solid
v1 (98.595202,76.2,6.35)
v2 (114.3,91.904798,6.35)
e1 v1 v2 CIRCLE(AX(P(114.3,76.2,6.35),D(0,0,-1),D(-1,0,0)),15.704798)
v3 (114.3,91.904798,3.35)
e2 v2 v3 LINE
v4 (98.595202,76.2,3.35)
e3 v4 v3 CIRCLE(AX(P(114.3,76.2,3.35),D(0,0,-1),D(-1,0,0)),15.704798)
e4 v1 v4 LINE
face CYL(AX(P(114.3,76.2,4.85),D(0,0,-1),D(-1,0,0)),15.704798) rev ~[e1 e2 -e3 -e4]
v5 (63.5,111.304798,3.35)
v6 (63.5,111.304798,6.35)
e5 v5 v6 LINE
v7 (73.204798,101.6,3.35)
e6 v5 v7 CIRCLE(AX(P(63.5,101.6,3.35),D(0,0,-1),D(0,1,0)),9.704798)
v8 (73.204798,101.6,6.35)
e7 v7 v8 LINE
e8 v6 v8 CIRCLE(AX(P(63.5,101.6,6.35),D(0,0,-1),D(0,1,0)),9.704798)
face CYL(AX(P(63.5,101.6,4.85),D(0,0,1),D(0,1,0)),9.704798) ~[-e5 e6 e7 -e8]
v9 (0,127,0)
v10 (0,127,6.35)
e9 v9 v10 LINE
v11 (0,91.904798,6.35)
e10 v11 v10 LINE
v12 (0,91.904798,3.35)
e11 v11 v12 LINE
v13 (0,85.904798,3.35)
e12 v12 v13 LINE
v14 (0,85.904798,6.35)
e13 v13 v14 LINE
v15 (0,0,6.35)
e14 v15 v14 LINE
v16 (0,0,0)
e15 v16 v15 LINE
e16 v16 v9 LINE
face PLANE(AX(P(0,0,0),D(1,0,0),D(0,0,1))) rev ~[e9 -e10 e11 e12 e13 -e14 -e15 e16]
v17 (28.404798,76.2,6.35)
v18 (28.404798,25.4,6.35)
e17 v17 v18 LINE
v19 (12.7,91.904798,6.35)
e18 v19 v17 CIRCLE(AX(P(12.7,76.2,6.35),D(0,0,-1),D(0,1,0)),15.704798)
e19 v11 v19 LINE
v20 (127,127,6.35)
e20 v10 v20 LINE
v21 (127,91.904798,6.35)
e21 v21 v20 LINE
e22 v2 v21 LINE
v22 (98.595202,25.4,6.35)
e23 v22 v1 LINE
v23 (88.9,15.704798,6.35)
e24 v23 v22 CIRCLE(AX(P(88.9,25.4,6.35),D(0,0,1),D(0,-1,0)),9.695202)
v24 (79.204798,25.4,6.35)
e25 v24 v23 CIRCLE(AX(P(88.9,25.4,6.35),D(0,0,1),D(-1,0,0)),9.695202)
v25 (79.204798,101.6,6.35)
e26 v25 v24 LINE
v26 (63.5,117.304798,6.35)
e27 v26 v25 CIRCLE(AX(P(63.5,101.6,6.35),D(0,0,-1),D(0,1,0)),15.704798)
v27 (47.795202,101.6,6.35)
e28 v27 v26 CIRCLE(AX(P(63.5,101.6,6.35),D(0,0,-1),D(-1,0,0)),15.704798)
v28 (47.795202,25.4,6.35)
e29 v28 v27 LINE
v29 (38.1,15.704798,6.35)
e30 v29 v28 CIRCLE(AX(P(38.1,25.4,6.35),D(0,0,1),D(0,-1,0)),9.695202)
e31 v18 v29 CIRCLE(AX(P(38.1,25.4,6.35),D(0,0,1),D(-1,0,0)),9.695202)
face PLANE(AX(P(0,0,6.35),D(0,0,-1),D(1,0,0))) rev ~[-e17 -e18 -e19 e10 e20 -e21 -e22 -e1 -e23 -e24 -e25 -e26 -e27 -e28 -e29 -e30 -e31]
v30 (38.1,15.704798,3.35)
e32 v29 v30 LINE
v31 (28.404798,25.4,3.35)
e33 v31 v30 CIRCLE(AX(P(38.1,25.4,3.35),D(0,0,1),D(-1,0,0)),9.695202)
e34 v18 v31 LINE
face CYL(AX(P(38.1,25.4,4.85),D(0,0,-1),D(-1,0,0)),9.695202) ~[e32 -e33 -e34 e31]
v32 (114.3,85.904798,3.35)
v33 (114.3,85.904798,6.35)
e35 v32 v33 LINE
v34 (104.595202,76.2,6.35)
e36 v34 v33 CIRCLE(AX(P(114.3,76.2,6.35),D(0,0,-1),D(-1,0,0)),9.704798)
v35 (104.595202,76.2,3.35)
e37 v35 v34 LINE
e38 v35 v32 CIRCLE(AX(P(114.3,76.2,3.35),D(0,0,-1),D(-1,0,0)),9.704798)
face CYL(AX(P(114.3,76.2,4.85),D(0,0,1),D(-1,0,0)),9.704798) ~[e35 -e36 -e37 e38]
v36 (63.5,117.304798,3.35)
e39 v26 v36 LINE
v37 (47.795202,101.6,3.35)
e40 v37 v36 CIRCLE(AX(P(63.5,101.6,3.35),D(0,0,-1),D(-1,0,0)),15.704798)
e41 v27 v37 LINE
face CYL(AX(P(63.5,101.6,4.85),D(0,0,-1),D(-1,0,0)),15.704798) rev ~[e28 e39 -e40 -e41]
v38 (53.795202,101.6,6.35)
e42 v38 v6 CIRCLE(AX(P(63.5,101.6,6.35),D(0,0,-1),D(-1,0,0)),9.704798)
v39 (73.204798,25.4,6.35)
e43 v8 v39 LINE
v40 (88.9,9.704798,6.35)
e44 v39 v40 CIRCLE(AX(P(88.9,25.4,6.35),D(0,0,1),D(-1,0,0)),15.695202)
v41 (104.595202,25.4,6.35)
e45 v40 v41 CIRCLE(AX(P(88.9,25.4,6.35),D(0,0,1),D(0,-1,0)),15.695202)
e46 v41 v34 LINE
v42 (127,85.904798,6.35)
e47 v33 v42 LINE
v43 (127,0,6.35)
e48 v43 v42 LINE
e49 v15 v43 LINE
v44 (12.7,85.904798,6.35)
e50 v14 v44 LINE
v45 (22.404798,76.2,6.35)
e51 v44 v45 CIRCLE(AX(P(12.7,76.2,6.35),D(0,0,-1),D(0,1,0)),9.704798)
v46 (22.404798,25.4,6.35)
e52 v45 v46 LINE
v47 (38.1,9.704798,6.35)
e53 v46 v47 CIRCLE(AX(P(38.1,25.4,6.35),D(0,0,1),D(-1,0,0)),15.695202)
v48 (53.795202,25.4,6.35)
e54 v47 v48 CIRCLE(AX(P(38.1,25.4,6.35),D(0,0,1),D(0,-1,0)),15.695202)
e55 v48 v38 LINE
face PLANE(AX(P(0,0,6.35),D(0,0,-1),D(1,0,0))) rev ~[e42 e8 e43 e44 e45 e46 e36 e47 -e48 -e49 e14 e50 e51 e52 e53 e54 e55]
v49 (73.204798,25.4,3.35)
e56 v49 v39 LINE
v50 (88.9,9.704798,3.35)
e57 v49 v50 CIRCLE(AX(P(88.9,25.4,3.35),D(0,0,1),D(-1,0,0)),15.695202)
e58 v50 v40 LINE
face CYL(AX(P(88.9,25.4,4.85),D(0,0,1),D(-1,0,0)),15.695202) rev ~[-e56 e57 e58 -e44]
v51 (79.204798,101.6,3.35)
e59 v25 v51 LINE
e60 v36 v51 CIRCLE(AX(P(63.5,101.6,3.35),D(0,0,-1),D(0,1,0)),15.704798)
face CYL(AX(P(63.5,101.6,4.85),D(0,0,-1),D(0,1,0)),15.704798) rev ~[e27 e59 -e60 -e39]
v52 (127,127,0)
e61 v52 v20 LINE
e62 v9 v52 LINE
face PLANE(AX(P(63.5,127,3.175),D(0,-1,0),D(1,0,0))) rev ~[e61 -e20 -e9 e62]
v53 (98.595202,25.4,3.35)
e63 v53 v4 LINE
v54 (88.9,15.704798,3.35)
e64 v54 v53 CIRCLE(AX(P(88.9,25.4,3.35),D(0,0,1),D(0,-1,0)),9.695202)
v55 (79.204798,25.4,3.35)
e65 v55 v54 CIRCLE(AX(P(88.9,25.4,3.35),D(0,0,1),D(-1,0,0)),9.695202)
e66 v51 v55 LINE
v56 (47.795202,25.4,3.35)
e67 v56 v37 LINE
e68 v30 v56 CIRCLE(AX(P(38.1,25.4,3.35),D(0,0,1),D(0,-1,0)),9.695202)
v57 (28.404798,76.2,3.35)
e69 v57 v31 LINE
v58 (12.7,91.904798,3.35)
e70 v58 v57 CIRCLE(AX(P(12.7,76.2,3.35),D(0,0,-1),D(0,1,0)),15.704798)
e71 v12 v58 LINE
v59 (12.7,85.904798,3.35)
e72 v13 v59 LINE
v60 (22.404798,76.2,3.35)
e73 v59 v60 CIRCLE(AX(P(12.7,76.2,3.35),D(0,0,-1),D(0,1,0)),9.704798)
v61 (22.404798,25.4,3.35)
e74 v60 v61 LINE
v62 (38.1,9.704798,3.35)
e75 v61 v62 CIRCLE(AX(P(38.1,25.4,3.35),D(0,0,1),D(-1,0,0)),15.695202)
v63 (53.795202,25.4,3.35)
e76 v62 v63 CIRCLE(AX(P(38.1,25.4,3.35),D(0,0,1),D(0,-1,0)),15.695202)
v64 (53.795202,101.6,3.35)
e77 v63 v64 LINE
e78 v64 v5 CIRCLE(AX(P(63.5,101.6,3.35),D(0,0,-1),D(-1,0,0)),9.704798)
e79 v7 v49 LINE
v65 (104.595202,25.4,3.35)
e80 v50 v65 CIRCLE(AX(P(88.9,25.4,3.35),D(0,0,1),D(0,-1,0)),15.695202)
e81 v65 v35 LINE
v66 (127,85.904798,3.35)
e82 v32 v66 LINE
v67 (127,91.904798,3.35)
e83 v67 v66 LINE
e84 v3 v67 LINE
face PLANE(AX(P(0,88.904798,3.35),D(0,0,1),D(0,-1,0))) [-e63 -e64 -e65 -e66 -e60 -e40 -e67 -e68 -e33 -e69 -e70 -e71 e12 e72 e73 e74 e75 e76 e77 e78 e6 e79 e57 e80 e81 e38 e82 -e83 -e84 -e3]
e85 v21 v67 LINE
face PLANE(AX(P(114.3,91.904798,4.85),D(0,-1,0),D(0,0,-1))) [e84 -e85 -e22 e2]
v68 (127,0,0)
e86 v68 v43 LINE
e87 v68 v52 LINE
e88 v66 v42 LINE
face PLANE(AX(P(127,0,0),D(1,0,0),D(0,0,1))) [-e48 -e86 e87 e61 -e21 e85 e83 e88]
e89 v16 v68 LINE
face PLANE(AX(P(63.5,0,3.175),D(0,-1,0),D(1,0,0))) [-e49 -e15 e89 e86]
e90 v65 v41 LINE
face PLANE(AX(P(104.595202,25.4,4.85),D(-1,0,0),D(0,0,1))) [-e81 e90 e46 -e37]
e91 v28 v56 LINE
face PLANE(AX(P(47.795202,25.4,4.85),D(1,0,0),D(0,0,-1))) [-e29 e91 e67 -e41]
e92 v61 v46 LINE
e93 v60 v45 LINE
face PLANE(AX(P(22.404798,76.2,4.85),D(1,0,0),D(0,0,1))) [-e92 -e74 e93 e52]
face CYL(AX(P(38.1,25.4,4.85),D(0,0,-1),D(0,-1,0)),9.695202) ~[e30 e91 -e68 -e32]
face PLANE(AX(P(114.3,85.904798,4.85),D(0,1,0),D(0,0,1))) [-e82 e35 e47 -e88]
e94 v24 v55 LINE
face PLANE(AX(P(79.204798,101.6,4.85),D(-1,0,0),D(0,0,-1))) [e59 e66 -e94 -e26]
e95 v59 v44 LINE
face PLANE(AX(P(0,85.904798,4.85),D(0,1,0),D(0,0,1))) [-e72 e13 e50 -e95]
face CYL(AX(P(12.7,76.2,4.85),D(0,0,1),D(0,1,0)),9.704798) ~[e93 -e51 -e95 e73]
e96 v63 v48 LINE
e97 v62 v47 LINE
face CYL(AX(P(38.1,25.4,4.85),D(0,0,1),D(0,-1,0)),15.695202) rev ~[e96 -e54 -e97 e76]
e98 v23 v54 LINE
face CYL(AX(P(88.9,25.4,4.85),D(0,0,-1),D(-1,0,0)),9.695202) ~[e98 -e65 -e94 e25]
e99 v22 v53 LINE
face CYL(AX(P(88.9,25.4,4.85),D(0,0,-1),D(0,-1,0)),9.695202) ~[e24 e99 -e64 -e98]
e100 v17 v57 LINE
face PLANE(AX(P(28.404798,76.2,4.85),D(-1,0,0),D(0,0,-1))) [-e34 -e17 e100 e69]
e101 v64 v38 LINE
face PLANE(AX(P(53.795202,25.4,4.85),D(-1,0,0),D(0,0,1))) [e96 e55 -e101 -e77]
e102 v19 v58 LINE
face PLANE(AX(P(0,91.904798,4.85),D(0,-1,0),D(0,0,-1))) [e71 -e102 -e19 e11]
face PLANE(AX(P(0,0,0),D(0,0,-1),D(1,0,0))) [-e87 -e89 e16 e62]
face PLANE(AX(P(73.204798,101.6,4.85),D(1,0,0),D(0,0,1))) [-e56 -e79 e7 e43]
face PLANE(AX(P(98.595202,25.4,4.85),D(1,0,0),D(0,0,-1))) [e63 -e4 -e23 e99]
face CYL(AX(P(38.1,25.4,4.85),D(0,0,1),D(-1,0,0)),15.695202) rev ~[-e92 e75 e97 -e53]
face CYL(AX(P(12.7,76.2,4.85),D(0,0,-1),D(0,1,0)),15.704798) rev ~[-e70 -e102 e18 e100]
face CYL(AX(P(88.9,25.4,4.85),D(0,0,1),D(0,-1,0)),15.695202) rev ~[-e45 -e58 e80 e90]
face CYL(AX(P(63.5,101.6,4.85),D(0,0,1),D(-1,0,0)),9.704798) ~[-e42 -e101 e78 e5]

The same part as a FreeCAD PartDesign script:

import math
import FreeCAD as App
import Part
import Sketcher

V = App.Vector
Q = App.Units.Quantity

doc = App.newDocument("Part")
params = doc.addObject("Spreadsheet::Sheet", "Params")
for row, (alias, value) in enumerate([
    ("sketch1_width", "5 in"),
    ("sketch1_height", "0.25 in"),
    ("pad1_length", "5 in"),
    ("sketch3_radius", "0.5 in"),
    ("sketch3_height", "2 in"),
    ("sketch3_height2", "3 in"),
    ("sketch3_width", "0.5 in"),
], start=1):
    params.set(f"A{row}", alias)
    params.set(f"B{row}", "=" + value)
    params.setAlias(f"B{row}", alias)

body = doc.addObject("PartDesign::Body", "Body")

sketch1 = doc.addObject("Sketcher::SketchObject", "Sketch")
body.addObject(sketch1)
sketch1.AttachmentSupport = (doc.XZ_Plane, [""])
sketch1.MapMode = "FlatFace"
sketch1.addGeometry([
    Part.LineSegment(V(0, 6, 0), V(0, 0, 0)),
    Part.LineSegment(V(0, 0, 0), V(127, 0, 0)),
    Part.LineSegment(V(127, 0, 0), V(127, 6, 0)),
    Part.LineSegment(V(127, 6, 0), V(0, 6, 0)),
], False)
sketch1.addConstraint([
    Sketcher.Constraint("Coincident", 0, 2, 1, 1),
    Sketcher.Constraint("Coincident", 1, 2, 2, 1),
    Sketcher.Constraint("Coincident", 2, 2, 3, 1),
    Sketcher.Constraint("Coincident", 3, 2, 0, 1),
    Sketcher.Constraint("Vertical", 0),
    Sketcher.Constraint("Horizontal", 1),
    Sketcher.Constraint("Vertical", 2),
    Sketcher.Constraint("Horizontal", 3),
    Sketcher.Constraint("Coincident", 0, 2, -1, 1),
    Sketcher.Constraint("DistanceX", 1, 1, 1, 2, Q("5 in")),
    Sketcher.Constraint("DistanceY", 0, 2, 0, 1, Q("0.25 in")),
])
sketch1.setExpression("Constraints[9]", "Params.sketch1_width")
sketch1.setExpression("Constraints[10]", "Params.sketch1_height")
pad1 = doc.addObject("PartDesign::Pad", "Pad")
body.addObject(pad1)
pad1.Profile = sketch1
pad1.setExpression("Length", "Params.pad1_length")
pad1.Reversed = True

sketch2 = doc.addObject("Sketcher::SketchObject", "Sketch001")
body.addObject(sketch2)
sketch2.AttachmentSupport = (doc.YZ_Plane, [""])
sketch2.MapMode = "FlatFace"
sketch2.addGeometry([
    Part.LineSegment(V(91.9, 6.3, 0), V(91.9, 3.4, 0)),
    Part.LineSegment(V(91.9, 3.4, 0), V(85.9, 3.4, 0)),
    Part.LineSegment(V(85.9, 3.4, 0), V(85.9, 6.3, 0)),
    Part.LineSegment(V(85.9, 6.3, 0), V(91.9, 6.3, 0)),
], False)
sketch2.addConstraint([
    Sketcher.Constraint("Coincident", 0, 2, 1, 1),
    Sketcher.Constraint("Coincident", 1, 2, 2, 1),
    Sketcher.Constraint("Coincident", 2, 2, 3, 1),
    Sketcher.Constraint("Coincident", 3, 2, 0, 1),
    Sketcher.Constraint("Vertical", 0),
    Sketcher.Constraint("Horizontal", 1),
    Sketcher.Constraint("Vertical", 2),
    Sketcher.Constraint("Horizontal", 3),
    Sketcher.Constraint("DistanceY", -1, 1, 2, 2, Q("0.25 in")),
    Sketcher.Constraint("DistanceX", 1, 2, 1, 1, Q("6 mm")),
    Sketcher.Constraint("DistanceY", 0, 2, 0, 1, Q("3 mm")),
    Sketcher.Constraint("DistanceX", -1, 1, 0, 2, Q("91.904798 mm")),
])

sketch3 = doc.addObject("Sketcher::SketchObject", "Sketch002")
body.addObject(sketch3)
sketch3.AttachmentSupport = (doc.XY_Plane, [""])
sketch3.MapMode = "FlatFace"
sketch3.AttachmentOffset = App.Placement(V(0, 0, 0.25 * 25.4), App.Rotation())
sketch3.addGeometry([
    Part.LineSegment(V(0, 89, 0), V(13, 89, 0)),
    Part.ArcOfCircle(Part.Circle(V(13, 76, 0), V(0, 0, 1), 13), math.radians(0), math.radians(90)),
    Part.LineSegment(V(25, 76, 0), V(25, 25, 0)),
    Part.ArcOfCircle(Part.Circle(V(38, 25, 0), V(0, 0, 1), 13), math.radians(180), math.radians(270)),
    Part.ArcOfCircle(Part.Circle(V(38, 25, 0), V(0, 0, 1), 13), math.radians(-90), math.radians(0)),
    Part.LineSegment(V(51, 25, 0), V(51, 102, 0)),
    Part.ArcOfCircle(Part.Circle(V(64, 102, 0), V(0, 0, 1), 13), math.radians(90), math.radians(180)),
    Part.ArcOfCircle(Part.Circle(V(64, 102, 0), V(0, 0, 1), 13), math.radians(0), math.radians(90)),
    Part.LineSegment(V(76, 102, 0), V(76, 25, 0)),
    Part.ArcOfCircle(Part.Circle(V(89, 25, 0), V(0, 0, 1), 13), math.radians(180), math.radians(270)),
    Part.ArcOfCircle(Part.Circle(V(89, 25, 0), V(0, 0, 1), 13), math.radians(-90), math.radians(0)),
    Part.LineSegment(V(102, 25, 0), V(102, 76, 0)),
    Part.ArcOfCircle(Part.Circle(V(114, 76, 0), V(0, 0, 1), 13), math.radians(90), math.radians(180)),
    Part.LineSegment(V(114, 89, 0), V(127, 89, 0)),
], False)
sketch3.addConstraint([
    Sketcher.Constraint("Tangent", 0, 2, 1, 2),
    Sketcher.Constraint("Tangent", 1, 1, 2, 1),
    Sketcher.Constraint("Tangent", 2, 2, 3, 1),
    Sketcher.Constraint("Tangent", 3, 2, 4, 1),
    Sketcher.Constraint("Tangent", 4, 2, 5, 1),
    Sketcher.Constraint("Tangent", 5, 2, 6, 2),
    Sketcher.Constraint("Tangent", 6, 1, 7, 2),
    Sketcher.Constraint("Tangent", 7, 1, 8, 1),
    Sketcher.Constraint("Tangent", 8, 2, 9, 1),
    Sketcher.Constraint("Tangent", 9, 2, 10, 1),
    Sketcher.Constraint("Tangent", 10, 2, 11, 1),
    Sketcher.Constraint("Tangent", 11, 2, 12, 2),
    Sketcher.Constraint("Tangent", 12, 1, 13, 1),
    Sketcher.Constraint("Horizontal", 0),
    Sketcher.Constraint("Vertical", 2),
    Sketcher.Constraint("Vertical", 5),
    Sketcher.Constraint("Vertical", 8),
    Sketcher.Constraint("Vertical", 11),
    Sketcher.Constraint("Horizontal", 13),
    Sketcher.Constraint("Equal", 1, 3),
    Sketcher.Constraint("Equal", 3, 4),
    Sketcher.Constraint("Equal", 4, 6),
    Sketcher.Constraint("Equal", 6, 7),
    Sketcher.Constraint("Equal", 7, 9),
    Sketcher.Constraint("Equal", 9, 10),
    Sketcher.Constraint("Equal", 10, 12),
    Sketcher.Constraint("PointOnObject", 0, 1, -2),
    Sketcher.Constraint("Horizontal", 4, 3, 9, 3),
    Sketcher.Constraint("Horizontal", 1, 3, 12, 3),
    Sketcher.Constraint("Vertical", 4, 3, 3, 2),
    Sketcher.Constraint("Vertical", 7, 3, 6, 1),
    Sketcher.Constraint("Vertical", 10, 3, 9, 2),
    Sketcher.Constraint("Equal", 0, 13),
    Sketcher.Constraint("Radius", 1, Q("0.5 in")),
    Sketcher.Constraint("DistanceY", 2, 2, 2, 1, Q("2 in")),
    Sketcher.Constraint("DistanceY", 5, 1, 5, 2, Q("3 in")),
    Sketcher.Constraint("DistanceX", 0, 1, 0, 2, Q("0.5 in")),
    Sketcher.Constraint("DistanceY", -1, 1, 1, 3, Q("3 in")),
])
sketch3.setExpression("Constraints[33]", "Params.sketch3_radius")
sketch3.setExpression("Constraints[34]", "Params.sketch3_height")
sketch3.setExpression("Constraints[35]", "Params.sketch3_height2")
sketch3.setExpression("Constraints[36]", "Params.sketch3_width")
doc.recompute()

subtractivepipe = doc.addObject("PartDesign::SubtractivePipe", "SubtractivePipe")
body.addObject(subtractivepipe)
subtractivepipe.Profile = sketch2
subtractivepipe.Spine = (sketch3, ["Edge1", "Edge2", "Edge3", "Edge4", "Edge5", "Edge6", "Edge7", "Edge8", "Edge9", "Edge10", "Edge11", "Edge12", "Edge13", "Edge14"])

doc.recompute()
